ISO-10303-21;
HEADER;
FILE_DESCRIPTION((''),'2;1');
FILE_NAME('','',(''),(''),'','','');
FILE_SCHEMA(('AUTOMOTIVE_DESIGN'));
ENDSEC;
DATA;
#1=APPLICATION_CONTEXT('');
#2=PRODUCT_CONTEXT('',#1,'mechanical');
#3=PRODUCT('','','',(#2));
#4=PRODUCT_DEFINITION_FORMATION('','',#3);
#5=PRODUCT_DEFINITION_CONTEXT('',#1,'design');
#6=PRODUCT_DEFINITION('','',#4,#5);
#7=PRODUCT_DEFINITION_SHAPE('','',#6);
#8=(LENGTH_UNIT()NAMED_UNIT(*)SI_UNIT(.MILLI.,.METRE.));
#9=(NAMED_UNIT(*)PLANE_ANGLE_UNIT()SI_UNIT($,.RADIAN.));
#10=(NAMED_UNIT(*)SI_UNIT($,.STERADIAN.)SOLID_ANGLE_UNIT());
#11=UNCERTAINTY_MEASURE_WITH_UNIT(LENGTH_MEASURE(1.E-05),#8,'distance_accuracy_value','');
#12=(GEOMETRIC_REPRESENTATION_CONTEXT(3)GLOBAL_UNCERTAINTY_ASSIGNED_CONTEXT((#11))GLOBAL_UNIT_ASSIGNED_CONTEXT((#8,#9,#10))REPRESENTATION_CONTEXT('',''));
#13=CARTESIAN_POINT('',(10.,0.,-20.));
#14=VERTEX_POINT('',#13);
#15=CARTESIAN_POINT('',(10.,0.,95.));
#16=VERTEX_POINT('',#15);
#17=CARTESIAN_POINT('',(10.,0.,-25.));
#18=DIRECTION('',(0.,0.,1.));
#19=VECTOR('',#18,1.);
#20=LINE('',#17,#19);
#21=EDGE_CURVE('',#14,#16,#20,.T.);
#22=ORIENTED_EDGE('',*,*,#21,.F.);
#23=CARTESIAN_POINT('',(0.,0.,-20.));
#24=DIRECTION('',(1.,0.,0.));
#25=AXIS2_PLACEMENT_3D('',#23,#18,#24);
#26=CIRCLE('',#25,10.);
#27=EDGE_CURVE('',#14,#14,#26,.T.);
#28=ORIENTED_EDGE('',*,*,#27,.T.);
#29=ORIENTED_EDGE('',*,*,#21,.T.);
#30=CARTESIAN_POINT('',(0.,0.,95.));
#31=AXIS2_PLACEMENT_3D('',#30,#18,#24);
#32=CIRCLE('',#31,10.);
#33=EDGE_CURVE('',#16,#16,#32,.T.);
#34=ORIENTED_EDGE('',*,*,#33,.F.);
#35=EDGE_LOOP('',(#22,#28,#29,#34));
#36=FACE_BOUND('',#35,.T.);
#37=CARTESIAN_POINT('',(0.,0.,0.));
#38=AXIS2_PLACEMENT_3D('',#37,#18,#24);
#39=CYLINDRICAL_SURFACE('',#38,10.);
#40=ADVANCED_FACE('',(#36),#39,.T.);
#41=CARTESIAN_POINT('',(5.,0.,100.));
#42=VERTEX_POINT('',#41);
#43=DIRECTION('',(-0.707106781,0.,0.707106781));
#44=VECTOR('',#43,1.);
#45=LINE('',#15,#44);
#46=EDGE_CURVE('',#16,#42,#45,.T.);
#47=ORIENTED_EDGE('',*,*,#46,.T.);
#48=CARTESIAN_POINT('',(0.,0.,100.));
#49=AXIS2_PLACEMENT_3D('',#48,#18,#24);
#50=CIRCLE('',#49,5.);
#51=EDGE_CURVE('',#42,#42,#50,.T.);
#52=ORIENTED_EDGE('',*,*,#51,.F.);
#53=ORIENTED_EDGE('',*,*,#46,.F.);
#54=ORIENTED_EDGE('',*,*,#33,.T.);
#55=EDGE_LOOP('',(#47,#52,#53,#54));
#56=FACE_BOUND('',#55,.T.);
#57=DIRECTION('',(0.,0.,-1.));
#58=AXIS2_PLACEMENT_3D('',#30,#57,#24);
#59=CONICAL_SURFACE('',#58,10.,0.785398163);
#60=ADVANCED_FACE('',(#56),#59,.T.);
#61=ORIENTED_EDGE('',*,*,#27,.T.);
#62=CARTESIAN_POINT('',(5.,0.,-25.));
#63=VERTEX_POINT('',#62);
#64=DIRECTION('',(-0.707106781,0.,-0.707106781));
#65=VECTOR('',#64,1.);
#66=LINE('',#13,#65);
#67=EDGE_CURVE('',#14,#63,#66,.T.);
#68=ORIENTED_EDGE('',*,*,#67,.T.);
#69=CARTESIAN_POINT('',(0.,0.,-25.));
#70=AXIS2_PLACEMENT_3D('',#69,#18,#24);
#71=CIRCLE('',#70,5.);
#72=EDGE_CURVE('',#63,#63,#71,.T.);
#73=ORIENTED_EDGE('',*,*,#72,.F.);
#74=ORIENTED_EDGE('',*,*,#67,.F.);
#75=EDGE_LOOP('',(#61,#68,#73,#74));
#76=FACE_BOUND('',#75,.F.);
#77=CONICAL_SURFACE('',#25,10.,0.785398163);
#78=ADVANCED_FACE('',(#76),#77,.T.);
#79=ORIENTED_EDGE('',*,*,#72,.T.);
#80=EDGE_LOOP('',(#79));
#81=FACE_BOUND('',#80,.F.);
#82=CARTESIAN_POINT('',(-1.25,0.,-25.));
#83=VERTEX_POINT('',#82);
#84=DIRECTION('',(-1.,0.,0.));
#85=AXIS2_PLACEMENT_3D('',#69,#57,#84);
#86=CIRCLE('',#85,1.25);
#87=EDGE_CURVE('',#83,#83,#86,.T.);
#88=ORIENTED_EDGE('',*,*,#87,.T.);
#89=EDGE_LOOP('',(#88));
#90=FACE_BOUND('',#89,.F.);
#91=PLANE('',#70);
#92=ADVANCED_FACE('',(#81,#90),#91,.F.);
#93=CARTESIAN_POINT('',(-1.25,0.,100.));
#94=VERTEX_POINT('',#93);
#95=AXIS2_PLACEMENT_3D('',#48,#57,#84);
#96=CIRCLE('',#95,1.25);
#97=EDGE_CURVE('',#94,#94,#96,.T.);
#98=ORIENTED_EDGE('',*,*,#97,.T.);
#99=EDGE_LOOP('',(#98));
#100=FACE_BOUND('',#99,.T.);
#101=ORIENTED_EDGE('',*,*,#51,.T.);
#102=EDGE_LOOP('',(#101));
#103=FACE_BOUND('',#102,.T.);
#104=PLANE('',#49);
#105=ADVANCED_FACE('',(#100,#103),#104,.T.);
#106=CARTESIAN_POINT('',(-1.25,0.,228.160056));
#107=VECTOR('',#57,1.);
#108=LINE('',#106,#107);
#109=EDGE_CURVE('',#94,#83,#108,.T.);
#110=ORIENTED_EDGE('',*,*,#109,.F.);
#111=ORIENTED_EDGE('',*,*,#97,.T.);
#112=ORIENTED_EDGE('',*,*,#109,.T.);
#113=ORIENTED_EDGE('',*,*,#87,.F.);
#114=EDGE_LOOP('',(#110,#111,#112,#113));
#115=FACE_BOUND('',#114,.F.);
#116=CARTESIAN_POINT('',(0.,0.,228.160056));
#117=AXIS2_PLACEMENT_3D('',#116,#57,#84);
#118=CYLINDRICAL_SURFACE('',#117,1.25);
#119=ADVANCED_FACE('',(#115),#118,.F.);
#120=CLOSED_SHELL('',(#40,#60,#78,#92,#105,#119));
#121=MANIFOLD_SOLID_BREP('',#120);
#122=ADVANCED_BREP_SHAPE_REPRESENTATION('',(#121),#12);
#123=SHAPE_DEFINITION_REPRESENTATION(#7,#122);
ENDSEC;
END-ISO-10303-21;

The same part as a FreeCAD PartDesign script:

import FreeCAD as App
import Part
import Sketcher


def edges_at(feature, points):
    """Names of the edges that pass closest to the given points."""
    edges = feature.Shape.Edges
    near = lambda p: min(range(len(edges)), key=lambda i: edges[i].distToShape(Part.Vertex(*p))[0])
    return sorted({f"Edge{near(p) + 1}" for p in points})

doc = App.newDocument("Part")
body = doc.addObject("PartDesign::Body", "Body")

# Sketch on XY plane
sketch1 = doc.addObject("Sketcher::SketchObject", "Sketch")
body.addObject(sketch1)
sketch1.AttachmentSupport = (doc.XY_Plane, [""])
sketch1.MapMode = "FlatFace"
sketch1.addGeometry(Part.Circle(App.Vector(0, 0, 0), App.Vector(0, 0, 1), 10), False)
sketch1.addConstraint(Sketcher.Constraint("Coincident", 0, 3, -1, 1))
sketch1.addConstraint(Sketcher.Constraint("Diameter", 0, 20.0))
pad1 = doc.addObject("PartDesign::Pad", "Pad")
body.addObject(pad1)
pad1.Profile = sketch1
pad1.Type = "TwoLengths"
pad1.Length = 100
pad1.Length2 = 25
doc.recompute()

chamfer = doc.addObject("PartDesign::Chamfer", "Chamfer")
body.addObject(chamfer)
chamfer.Base = (pad1, edges_at(pad1, [(-10, 0, 100)]))
chamfer.Size = 5

# Sketch on XY plane
sketch2 = doc.addObject("Sketcher::SketchObject", "Sketch001")
body.addObject(sketch2)
sketch2.AttachmentSupport = (doc.XY_Plane, [""])
sketch2.MapMode = "FlatFace"
sketch2.AttachmentOffset = App.Placement(App.Vector(0, 0, 100), App.Rotation())
sketch2.addGeometry(Part.Circle(App.Vector(0, 0, 0), App.Vector(0, 0, 1), 1.2), False)
sketch2.addConstraint(Sketcher.Constraint("Coincident", 0, 3, -1, 1))
sketch2.addConstraint(Sketcher.Constraint("Diameter", 0, 2.5))
doc.recompute()
hole = doc.addObject("PartDesign::Hole", "Hole")
body.addObject(hole)
hole.Profile = sketch2
hole.ThreadType = "None"
hole.Diameter = 2.5
hole.DepthType = "ThroughAll"
doc.recompute()

chamfer2 = doc.addObject("PartDesign::Chamfer", "Chamfer001")
body.addObject(chamfer2)
chamfer2.Base = (hole, edges_at(hole, [(-10, 0, -25)]))
chamfer2.Size = 5

doc.recompute()
